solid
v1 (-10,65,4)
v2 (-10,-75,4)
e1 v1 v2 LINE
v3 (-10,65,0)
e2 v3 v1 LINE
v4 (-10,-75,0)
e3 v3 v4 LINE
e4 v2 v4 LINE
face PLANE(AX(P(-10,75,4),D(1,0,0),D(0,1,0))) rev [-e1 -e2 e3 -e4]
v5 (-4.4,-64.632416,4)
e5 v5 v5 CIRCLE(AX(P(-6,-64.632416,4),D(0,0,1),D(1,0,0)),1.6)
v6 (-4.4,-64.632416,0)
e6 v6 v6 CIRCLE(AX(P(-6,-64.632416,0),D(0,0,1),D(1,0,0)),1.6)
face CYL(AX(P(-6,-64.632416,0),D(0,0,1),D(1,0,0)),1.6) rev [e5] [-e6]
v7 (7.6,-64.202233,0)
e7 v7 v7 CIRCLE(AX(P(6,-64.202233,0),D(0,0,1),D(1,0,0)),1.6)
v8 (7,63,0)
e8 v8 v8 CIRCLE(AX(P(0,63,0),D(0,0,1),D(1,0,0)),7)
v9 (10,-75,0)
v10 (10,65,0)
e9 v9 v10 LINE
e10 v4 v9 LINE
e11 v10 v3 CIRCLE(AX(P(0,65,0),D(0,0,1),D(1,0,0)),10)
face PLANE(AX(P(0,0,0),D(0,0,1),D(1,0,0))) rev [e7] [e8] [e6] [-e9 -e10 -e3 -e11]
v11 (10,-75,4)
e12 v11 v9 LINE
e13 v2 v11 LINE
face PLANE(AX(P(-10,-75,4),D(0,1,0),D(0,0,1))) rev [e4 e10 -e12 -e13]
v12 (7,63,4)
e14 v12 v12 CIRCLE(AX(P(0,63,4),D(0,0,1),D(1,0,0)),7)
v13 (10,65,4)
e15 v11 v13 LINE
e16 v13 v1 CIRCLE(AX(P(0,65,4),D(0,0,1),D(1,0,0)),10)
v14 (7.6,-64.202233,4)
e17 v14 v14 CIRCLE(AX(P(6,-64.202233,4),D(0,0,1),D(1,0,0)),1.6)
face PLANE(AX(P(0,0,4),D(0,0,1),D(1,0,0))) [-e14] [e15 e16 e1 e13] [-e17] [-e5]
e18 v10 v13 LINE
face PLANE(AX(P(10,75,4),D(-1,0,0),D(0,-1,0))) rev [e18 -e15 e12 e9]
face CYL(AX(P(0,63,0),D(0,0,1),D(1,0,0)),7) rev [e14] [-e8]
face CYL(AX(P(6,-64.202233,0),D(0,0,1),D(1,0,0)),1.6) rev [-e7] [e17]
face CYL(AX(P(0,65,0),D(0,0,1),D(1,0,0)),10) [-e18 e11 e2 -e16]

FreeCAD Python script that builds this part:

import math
import FreeCAD as App
import Part
import Sketcher
from FreeCAD import Vector
Q = App.Units.Quantity

doc = App.newDocument("Part")
params = doc.addObject("Spreadsheet::Sheet", "Params")
for row, (alias, value) in enumerate([
    ("sketch1_width", "20 mm"),
    ("sketch1_height", "150 mm"),
    ("pad1_length", "4 mm"),
    ("sketch2_radius", "10 mm"),
    ("pocket1_length", "4 mm"),
    ("sketch3_diameter", "14 mm"),
    ("sketch3_diameter2", "3.2 mm"),
], start=1):
    params.set(f"A{row}", alias)
    params.set(f"B{row}", "=" + value)
    params.setAlias(f"B{row}", alias)

body = doc.addObject("PartDesign::Body", "Body")

# Sketch on XY plane
sketch1 = body.newObject("Sketcher::SketchObject", "Sketch")
sketch1.AttachmentSupport = (doc.getObject("XY_Plane"), [""])
sketch1.MapMode = "FlatFace"
sketch1.addGeometry([
    Part.LineSegment(Vector(-10, 75, 0), Vector(-10, -75, 0)),
    Part.LineSegment(Vector(-10, -75, 0), Vector(10, -75, 0)),
    Part.LineSegment(Vector(10, -75, 0), Vector(10, 75, 0)),
    Part.LineSegment(Vector(10, 75, 0), Vector(-10, 75, 0)),
], False)
sketch1.addConstraint([
    Sketcher.Constraint("Coincident", 0, 2, 1, 1),
    Sketcher.Constraint("Coincident", 1, 2, 2, 1),
    Sketcher.Constraint("Coincident", 2, 2, 3, 1),
    Sketcher.Constraint("Coincident", 3, 2, 0, 1),
    Sketcher.Constraint("Vertical", 0),
    Sketcher.Constraint("Horizontal", 1),
    Sketcher.Constraint("Vertical", 2),
    Sketcher.Constraint("Horizontal", 3),
    Sketcher.Constraint("Symmetric", 0, 2, 2, 2, -1, 1),
    Sketcher.Constraint("DistanceX", 1, 1, 1, 2, Q("20 mm")),
    Sketcher.Constraint("DistanceY", 0, 2, 0, 1, Q("150 mm")),
])
sketch1.setExpression("Constraints[9]", "Params.sketch1_width")
sketch1.setExpression("Constraints[10]", "Params.sketch1_height")
pad1 = body.newObject("PartDesign::Pad", "Pad")
pad1.Profile = sketch1
pad1.setExpression("Length", "Params.pad1_length")

# Sketch on XY plane
sketch2 = body.newObject("Sketcher::SketchObject", "Sketch001")
sketch2.AttachmentSupport = (doc.getObject("XY_Plane"), [""])
sketch2.MapMode = "FlatFace"
sketch2.AttachmentOffset = App.Placement(Vector(0, 0, 4), App.Rotation())
sketch2.addGeometry([
    Part.ArcOfCircle(Part.Circle(Vector(0, 65, 0), Vector(0, 0, 1), 10), math.radians(90), math.radians(180)),  # 0
    Part.LineSegment(Vector(0, 75, 0), Vector(-10, 75, 0)),  # 1
    Part.LineSegment(Vector(-10, 75, 0), Vector(-10, 65, 0)),  # 2
    Part.LineSegment(Vector(10, 75, 0), Vector(0, 75, 0)),  # 3
    Part.ArcOfCircle(Part.Circle(Vector(0, 65, 0), Vector(0, 0, 1), 10), math.radians(0), math.radians(90)),  # 4
    Part.LineSegment(Vector(10, 65, 0), Vector(10, 75, 0)),  # 5
], False)
sketch2.addConstraint([
    Sketcher.Constraint("Tangent", 0, 1, 1, 1),
    Sketcher.Constraint("Coincident", 1, 2, 2, 1),
    Sketcher.Constraint("Tangent", 2, 2, 0, 2),
    Sketcher.Constraint("Tangent", 3, 2, 4, 2),
    Sketcher.Constraint("Tangent", 4, 1, 5, 1),
    Sketcher.Constraint("Coincident", 5, 2, 3, 1),
    Sketcher.Constraint("Horizontal", 1),
    Sketcher.Constraint("Vertical", 2),
    Sketcher.Constraint("Horizontal", 3),
    Sketcher.Constraint("Vertical", 5),
    Sketcher.Constraint("Coincident", 4, 3, 0, 3),
    Sketcher.Constraint("Equal", 0, 4),
    Sketcher.Constraint("PointOnObject", 0, 3, -2),
    Sketcher.Constraint("Radius", 0, Q("10 mm")),
    Sketcher.Constraint("DistanceY", -1, 1, 0, 3, Q("65 mm")),
])
sketch2.setExpression("Constraints[13]", "Params.sketch2_radius")
pocket1 = body.newObject("PartDesign::Pocket", "Pocket")
pocket1.Profile = sketch2
pocket1.setExpression("Length", "Params.pocket1_length")

# Sketch on XY plane
sketch3 = body.newObject("Sketcher::SketchObject", "Sketch002")
sketch3.AttachmentSupport = (doc.getObject("XY_Plane"), [""])
sketch3.MapMode = "FlatFace"
sketch3.AttachmentOffset = App.Placement(Vector(0, 0, 4), App.Rotation())
sketch3.addGeometry([
    Part.Circle(Vector(0, 63, 0), Vector(0, 0, 1), 7),
    Part.Circle(Vector(-6, -64.6, 0), Vector(0, 0, 1), 1.6),
    Part.Circle(Vector(6, -64.2, 0), Vector(0, 0, 1), 1.6),
], False)
sketch3.addConstraint([
    Sketcher.Constraint("Equal", 1, 2),
    Sketcher.Constraint("PointOnObject", 0, 3, -2),
    Sketcher.Constraint("Diameter", 0, Q("14 mm")),
    Sketcher.Constraint("Diameter", 1, Q("3.2 mm")),
    Sketcher.Constraint("DistanceY", -1, 1, 0, 3, Q("63 mm")),
    Sketcher.Constraint("DistanceX", 1, 3, -1, 1, Q("6 mm")),
    Sketcher.Constraint("DistanceX", -1, 1, 2, 3, Q("6 mm")),
    Sketcher.Constraint("DistanceY", 1, 3, -1, 1, Q("64.632416 mm")),
    Sketcher.Constraint("DistanceY", 2, 3, -1, 1, Q("64.202233 mm")),
])
sketch3.setExpression("Constraints[2]", "Params.sketch3_diameter")
sketch3.setExpression("Constraints[3]", "Params.sketch3_diameter2")
pocket2 = body.newObject("PartDesign::Pocket", "Pocket001")
pocket2.Profile = sketch3
pocket2.Type = "ThroughAll"

doc.recompute()
